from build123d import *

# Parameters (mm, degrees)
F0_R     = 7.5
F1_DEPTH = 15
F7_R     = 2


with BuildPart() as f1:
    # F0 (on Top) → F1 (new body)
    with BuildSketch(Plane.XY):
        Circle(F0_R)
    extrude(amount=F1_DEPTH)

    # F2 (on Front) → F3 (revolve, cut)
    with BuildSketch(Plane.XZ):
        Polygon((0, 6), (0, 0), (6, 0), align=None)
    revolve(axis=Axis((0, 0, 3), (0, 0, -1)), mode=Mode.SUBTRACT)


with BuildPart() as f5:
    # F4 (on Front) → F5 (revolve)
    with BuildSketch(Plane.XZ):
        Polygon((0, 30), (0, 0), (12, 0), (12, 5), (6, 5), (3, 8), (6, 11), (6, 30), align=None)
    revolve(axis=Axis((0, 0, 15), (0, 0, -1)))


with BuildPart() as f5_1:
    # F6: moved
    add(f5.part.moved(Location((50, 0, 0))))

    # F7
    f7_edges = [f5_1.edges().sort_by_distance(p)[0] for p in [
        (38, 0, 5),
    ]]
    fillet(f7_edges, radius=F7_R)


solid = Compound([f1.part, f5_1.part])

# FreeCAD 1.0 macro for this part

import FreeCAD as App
import Part
import Sketcher
from FreeCAD import Vector


def edges_at(feature, points):
    """Names of the edges that pass closest to the given points."""
    edges = feature.Shape.Edges
    near = lambda p: min(range(len(edges)), key=lambda i: edges[i].distToShape(Part.Vertex(*p))[0])
    return sorted({f"Edge{near(p) + 1}" for p in points})

doc = App.newDocument("Part")
params = doc.addObject("Spreadsheet::Sheet", "Params")
for row, (alias, value) in enumerate([
    ("sketch1_diameter", "15 mm"),
    ("pad1_length", "15 mm"),
    ("sketch2_width", "6 mm"),
    ("groove_angle", "360 deg"),
    ("sketch3_width", "12 mm"),
    ("sketch3_height", "30 mm"),
    ("sketch3_height2", "5 mm"),
    ("sketch3_height3", "19 mm"),
    ("revolution_angle", "360 deg"),
    ("fillet_radius", "2 mm"),
], start=1):
    params.set(f"A{row}", alias)
    params.set(f"B{row}", "=" + value)
    params.setAlias(f"B{row}", alias)

body = doc.addObject("PartDesign::Body", "Body")

sketch1 = body.newObject("Sketcher::SketchObject", "Sketch")
sketch1.AttachmentSupport = (doc.getObject("XY_Plane"), [""])
sketch1.MapMode = "FlatFace"
sketch1.addGeometry(Part.Circle(Vector(0, 0, 0), Vector(0, 0, 1), 8), False)
sketch1.addConstraint(Sketcher.Constraint("Coincident", 0, 3, -1, 1))
sketch1.addConstraint(Sketcher.Constraint("Diameter", 0, 15.0))
sketch1.setExpression("Constraints[1]", "Params.sketch1_diameter")
pad1 = body.newObject("PartDesign::Pad", "Pad")
pad1.Profile = sketch1
pad1.setExpression("Length", "Params.pad1_length")

sketch2 = body.newObject("Sketcher::SketchObject", "Sketch001")
sketch2.AttachmentSupport = (doc.getObject("XZ_Plane"), [""])
sketch2.MapMode = "FlatFace"
sketch2.addGeometry(Part.LineSegment(Vector(0, 6, 0), Vector(0, 0, 0)), False)
sketch2.addGeometry(Part.LineSegment(Vector(0, 0, 0), Vector(6, 0, 0)), False)
sketch2.addGeometry(Part.LineSegment(Vector(6, 0, 0), Vector(0, 6, 0)), False)
sketch2.addConstraint(Sketcher.Constraint("Coincident", 0, 2, 1, 1))
sketch2.addConstraint(Sketcher.Constraint("Coincident", 1, 2, 2, 1))
sketch2.addConstraint(Sketcher.Constraint("Coincident", 2, 2, 0, 1))
sketch2.addConstraint(Sketcher.Constraint("Vertical", 0))
sketch2.addConstraint(Sketcher.Constraint("Horizontal", 1))
sketch2.addConstraint(Sketcher.Constraint("Coincident", 0, 2, -1, 1))
sketch2.addConstraint(Sketcher.Constraint("Equal", 1, 0))
sketch2.addConstraint(Sketcher.Constraint("DistanceX", 1, 1, 1, 2, 6.0))
sketch2.setExpression("Constraints[7]", "Params.sketch2_width")
groove = body.newObject("PartDesign::Groove", "Groove")
groove.Profile = sketch2
groove.ReferenceAxis = (sketch2, ["V_Axis"])
groove.setExpression("Angle", "Params.groove_angle")
body2 = doc.addObject("PartDesign::Body", "Body001")

sketch3 = body2.newObject("Sketcher::SketchObject", "Sketch002")
sketch3.AttachmentSupport = (doc.getObject("XZ_Plane001"), [""])
sketch3.MapMode = "FlatFace"
sketch3.addGeometry(Part.LineSegment(Vector(0, 30, 0), Vector(0, 0, 0)), False)
sketch3.addGeometry(Part.LineSegment(Vector(0, 0, 0), Vector(12, 0, 0)), False)
sketch3.addGeometry(Part.LineSegment(Vector(12, 0, 0), Vector(12, 5, 0)), False)
sketch3.addGeometry(Part.LineSegment(Vector(12, 5, 0), Vector(6, 5, 0)), False)
sketch3.addGeometry(Part.LineSegment(Vector(6, 5, 0), Vector(3, 8, 0)), False)
sketch3.addGeometry(Part.LineSegment(Vector(3, 8, 0), Vector(6, 11, 0)), False)
sketch3.addGeometry(Part.LineSegment(Vector(6, 11, 0), Vector(6, 30, 0)), False)
sketch3.addGeometry(Part.LineSegment(Vector(6, 30, 0), Vector(0, 30, 0)), False)
sketch3.addConstraint(Sketcher.Constraint("Coincident", 0, 2, 1, 1))
sketch3.addConstraint(Sketcher.Constraint("Coincident", 1, 2, 2, 1))
sketch3.addConstraint(Sketcher.Constraint("Coincident", 2, 2, 3, 1))
sketch3.addConstraint(Sketcher.Constraint("Coincident", 3, 2, 4, 1))
sketch3.addConstraint(Sketcher.Constraint("Coincident", 4, 2, 5, 1))
sketch3.addConstraint(Sketcher.Constraint("Coincident", 5, 2, 6, 1))
sketch3.addConstraint(Sketcher.Constraint("Coincident", 6, 2, 7, 1))
sketch3.addConstraint(Sketcher.Constraint("Coincident", 7, 2, 0, 1))
sketch3.addConstraint(Sketcher.Constraint("Vertical", 0))
sketch3.addConstraint(Sketcher.Constraint("Horizontal", 1))
sketch3.addConstraint(Sketcher.Constraint("Vertical", 2))
sketch3.addConstraint(Sketcher.Constraint("Horizontal", 3))
sketch3.addConstraint(Sketcher.Constraint("Vertical", 6))
sketch3.addConstraint(Sketcher.Constraint("Horizontal", 7))
sketch3.addConstraint(Sketcher.Constraint("Coincident", 0, 2, -1, 1))
sketch3.addConstraint(Sketcher.Constraint("Perpendicular", 4, 5))
sketch3.addConstraint(Sketcher.Constraint("Vertical", 3, 2, 5, 2))
sketch3.addConstraint(Sketcher.Constraint("Equal", 3, 7))
sketch3.addConstraint(Sketcher.Constraint("Equal", 4, 5))
sketch3.addConstraint(Sketcher.Constraint("DistanceX", 1, 1, 1, 2, 12.0))
sketch3.addConstraint(Sketcher.Constraint("DistanceY", 0, 2, 0, 1, 30.0))
sketch3.addConstraint(Sketcher.Constraint("DistanceY", 2, 1, 2, 2, 5.0))
sketch3.addConstraint(Sketcher.Constraint("DistanceY", 6, 1, 6, 2, 19.0))
sketch3.setExpression("Constraints[19]", "Params.sketch3_width")
sketch3.setExpression("Constraints[20]", "Params.sketch3_height")
sketch3.setExpression("Constraints[21]", "Params.sketch3_height2")
sketch3.setExpression("Constraints[22]", "Params.sketch3_height3")
revolution = body2.newObject("PartDesign::Revolution", "Revolution")
revolution.Profile = sketch3
revolution.ReferenceAxis = (sketch3, ["V_Axis"])
revolution.setExpression("Angle", "Params.revolution_angle")
body3 = doc.addObject("PartDesign::Body", "Body002")
doc.recompute()

body2.Placement = App.Placement(Vector(50, 0, 0), App.Rotation(Vector(0, 0, 1), 0))
boolean = body3.newObject("PartDesign::Boolean", "Boolean")
boolean.Type = "Fuse"
boolean.addObjects([body2])
doc.recompute()

fillet = body3.newObject("PartDesign::Fillet", "Fillet")
fillet.Base = (boolean, edges_at(boolean, [(38, 0, 5)]))
fillet.setExpression("Radius", "Params.fillet_radius")

doc.recompute()
